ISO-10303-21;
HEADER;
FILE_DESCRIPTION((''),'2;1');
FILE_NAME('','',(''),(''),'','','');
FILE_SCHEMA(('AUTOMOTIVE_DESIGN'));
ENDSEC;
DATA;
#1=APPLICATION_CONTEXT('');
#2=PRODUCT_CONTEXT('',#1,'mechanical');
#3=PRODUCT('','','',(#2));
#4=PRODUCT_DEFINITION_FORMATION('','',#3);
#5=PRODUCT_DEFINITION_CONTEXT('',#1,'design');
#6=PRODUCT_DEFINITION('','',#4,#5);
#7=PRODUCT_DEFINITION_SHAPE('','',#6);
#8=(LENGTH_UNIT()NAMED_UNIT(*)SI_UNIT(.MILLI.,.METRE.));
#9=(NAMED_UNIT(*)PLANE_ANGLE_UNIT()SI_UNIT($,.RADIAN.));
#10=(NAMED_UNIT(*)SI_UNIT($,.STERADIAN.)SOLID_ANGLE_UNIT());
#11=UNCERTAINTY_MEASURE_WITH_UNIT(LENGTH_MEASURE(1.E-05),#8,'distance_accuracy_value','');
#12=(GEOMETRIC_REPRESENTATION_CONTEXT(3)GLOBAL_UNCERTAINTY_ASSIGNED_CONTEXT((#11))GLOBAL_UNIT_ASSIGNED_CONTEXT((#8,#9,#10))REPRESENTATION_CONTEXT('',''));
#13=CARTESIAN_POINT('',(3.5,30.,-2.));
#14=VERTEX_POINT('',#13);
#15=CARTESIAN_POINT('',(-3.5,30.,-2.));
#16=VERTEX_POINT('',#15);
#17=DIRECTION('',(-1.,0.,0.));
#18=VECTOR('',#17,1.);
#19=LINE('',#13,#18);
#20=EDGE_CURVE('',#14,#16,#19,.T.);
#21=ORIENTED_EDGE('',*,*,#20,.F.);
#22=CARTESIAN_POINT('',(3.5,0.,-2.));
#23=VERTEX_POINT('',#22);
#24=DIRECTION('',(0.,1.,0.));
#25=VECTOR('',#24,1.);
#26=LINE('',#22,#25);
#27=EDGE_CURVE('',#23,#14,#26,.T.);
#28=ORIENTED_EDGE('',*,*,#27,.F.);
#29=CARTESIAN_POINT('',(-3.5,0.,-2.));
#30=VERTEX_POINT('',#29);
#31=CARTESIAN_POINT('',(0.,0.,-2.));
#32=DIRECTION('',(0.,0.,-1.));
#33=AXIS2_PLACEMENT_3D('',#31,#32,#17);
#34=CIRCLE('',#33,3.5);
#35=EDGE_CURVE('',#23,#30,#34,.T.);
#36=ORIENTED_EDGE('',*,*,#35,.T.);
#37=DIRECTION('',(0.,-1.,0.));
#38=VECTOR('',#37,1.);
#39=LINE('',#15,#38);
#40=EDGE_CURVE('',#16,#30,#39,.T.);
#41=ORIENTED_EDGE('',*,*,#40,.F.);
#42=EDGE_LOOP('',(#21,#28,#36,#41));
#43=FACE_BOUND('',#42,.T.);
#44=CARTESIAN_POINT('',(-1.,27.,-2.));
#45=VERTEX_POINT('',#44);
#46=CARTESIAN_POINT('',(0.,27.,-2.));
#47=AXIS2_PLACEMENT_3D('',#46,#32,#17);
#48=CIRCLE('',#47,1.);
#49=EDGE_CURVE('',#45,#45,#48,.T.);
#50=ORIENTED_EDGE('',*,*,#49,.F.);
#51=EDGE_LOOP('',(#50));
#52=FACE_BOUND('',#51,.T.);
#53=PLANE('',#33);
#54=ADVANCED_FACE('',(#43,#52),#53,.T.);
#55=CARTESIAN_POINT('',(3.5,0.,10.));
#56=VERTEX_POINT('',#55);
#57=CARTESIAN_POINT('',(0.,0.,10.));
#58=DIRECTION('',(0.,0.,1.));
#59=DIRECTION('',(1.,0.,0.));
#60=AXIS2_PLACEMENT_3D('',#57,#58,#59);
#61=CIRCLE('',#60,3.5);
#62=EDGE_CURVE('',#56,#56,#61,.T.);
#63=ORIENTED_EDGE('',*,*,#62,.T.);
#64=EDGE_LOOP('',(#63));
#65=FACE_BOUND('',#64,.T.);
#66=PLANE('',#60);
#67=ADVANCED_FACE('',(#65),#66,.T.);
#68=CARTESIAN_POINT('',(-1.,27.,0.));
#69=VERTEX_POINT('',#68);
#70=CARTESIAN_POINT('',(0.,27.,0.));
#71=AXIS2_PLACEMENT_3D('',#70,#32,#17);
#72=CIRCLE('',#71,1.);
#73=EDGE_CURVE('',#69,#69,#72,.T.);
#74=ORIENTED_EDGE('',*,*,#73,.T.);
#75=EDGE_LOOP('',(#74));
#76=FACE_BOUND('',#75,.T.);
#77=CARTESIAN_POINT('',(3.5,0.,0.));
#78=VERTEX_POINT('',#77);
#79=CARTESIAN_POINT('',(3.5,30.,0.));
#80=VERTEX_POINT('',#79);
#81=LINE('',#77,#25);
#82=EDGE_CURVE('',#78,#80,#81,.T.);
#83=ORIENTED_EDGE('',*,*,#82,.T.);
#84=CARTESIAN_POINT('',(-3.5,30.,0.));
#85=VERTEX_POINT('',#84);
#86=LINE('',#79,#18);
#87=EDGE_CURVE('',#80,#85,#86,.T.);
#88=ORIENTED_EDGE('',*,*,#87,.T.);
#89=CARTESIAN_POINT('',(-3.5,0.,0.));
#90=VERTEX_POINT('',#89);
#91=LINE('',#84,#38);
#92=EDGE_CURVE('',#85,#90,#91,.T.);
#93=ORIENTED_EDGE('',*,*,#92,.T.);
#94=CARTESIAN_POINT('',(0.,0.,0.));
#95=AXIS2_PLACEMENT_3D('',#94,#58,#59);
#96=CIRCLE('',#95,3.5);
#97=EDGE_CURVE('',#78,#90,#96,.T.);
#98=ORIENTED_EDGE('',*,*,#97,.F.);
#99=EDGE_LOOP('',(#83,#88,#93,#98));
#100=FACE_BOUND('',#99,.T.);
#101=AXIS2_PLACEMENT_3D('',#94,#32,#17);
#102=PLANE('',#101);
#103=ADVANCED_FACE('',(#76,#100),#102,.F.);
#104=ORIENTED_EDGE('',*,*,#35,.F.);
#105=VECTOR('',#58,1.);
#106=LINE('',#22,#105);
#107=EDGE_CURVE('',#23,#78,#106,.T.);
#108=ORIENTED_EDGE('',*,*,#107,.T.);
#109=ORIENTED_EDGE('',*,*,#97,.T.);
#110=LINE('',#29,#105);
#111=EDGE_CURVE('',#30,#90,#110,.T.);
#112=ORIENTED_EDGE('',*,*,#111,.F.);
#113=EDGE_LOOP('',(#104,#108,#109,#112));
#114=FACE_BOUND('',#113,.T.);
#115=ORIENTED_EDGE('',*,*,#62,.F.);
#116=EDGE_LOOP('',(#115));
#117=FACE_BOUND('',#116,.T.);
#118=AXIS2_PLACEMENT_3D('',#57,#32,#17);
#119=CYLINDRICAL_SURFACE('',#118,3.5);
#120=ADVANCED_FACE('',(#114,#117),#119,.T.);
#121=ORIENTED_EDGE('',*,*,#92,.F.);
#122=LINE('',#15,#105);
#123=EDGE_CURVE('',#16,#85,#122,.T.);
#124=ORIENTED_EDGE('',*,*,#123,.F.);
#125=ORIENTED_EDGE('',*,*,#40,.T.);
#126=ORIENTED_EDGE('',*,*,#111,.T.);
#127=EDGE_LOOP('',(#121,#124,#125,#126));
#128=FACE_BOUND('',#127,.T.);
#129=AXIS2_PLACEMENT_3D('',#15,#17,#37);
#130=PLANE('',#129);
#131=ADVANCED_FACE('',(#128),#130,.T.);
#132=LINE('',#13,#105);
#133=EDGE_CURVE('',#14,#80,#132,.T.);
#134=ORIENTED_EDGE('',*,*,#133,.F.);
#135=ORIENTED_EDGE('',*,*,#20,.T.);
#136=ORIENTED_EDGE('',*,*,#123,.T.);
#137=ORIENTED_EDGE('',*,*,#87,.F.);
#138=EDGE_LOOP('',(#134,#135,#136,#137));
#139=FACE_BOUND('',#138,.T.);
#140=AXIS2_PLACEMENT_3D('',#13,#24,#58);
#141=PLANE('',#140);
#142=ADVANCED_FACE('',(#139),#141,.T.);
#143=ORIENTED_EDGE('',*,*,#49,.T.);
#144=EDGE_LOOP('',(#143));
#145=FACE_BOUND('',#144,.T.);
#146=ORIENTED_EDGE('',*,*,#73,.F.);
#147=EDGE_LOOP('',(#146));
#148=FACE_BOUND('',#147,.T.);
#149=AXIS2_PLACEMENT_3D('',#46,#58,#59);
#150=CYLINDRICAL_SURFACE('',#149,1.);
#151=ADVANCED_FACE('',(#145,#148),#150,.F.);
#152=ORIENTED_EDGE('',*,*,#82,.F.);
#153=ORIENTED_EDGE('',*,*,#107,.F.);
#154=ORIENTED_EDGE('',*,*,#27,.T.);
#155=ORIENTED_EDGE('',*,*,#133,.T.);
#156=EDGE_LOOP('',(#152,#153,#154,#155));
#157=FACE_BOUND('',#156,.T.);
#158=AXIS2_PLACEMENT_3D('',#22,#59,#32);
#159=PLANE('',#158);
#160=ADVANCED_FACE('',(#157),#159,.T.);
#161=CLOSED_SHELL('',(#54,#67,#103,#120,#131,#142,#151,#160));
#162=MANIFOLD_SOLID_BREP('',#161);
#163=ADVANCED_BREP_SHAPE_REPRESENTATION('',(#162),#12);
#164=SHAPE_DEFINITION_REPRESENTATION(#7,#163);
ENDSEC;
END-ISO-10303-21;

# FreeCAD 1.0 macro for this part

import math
import FreeCAD as App
import Part
import Sketcher

doc = App.newDocument("Part")
body = doc.addObject("PartDesign::Body", "Body")

# Sketch on XY plane
sketch1 = body.newObject("Sketcher::SketchObject", "Sketch")
sketch1.AttachmentSupport = (doc.getObject("XY_Plane"), [""])
sketch1.MapMode = "FlatFace"
sketch1.addGeometry(Part.Circle(App.Vector(0, 0, 0), App.Vector(0, 0, 1), 3.5), False)
sketch1.addConstraint([
    Sketcher.Constraint("Coincident", 0, 3, -1, 1),
    Sketcher.Constraint("Diameter", 0, 7.0),
])
pad1 = body.newObject("PartDesign::Pad", "Pad")
pad1.Profile = sketch1
pad1.Length = 10

# Sketch on XY plane
sketch2 = body.newObject("Sketcher::SketchObject", "Sketch001")
sketch2.AttachmentSupport = (doc.getObject("XY_Plane"), [""])
sketch2.MapMode = "FlatFace"
sketch2.AttachmentOffset = App.Placement(App.Vector(0, 0, -2), App.Rotation())
sketch2.addGeometry([
    Part.LineSegment(App.Vector(3.5, 30, 0), App.Vector(3.5, 0, 0)),  # 0
    Part.ArcOfCircle(Part.Circle(App.Vector(0, 0, 0), App.Vector(0, 0, 1), 3.5), math.radians(180), math.radians(360)),  # 1
    Part.LineSegment(App.Vector(-3.5, 0, 0), App.Vector(-3.5, 30, 0)),  # 2
    Part.LineSegment(App.Vector(-3.5, 30, 0), App.Vector(3.5, 30, 0)),  # 3
    Part.Circle(App.Vector(0, 27, 0), App.Vector(0, 0, 1), 1),  # 4
], False)
sketch2.addConstraint([
    Sketcher.Constraint("Tangent", 0, 2, 1, 2),
    Sketcher.Constraint("Tangent", 1, 1, 2, 1),
    Sketcher.Constraint("Coincident", 2, 2, 3, 1),
    Sketcher.Constraint("Coincident", 3, 2, 0, 1),
    Sketcher.Constraint("Vertical", 0),
    Sketcher.Constraint("Vertical", 2),
    Sketcher.Constraint("Horizontal", 3),
    Sketcher.Constraint("Coincident", 1, 3, -1, 1),
    Sketcher.Constraint("PointOnObject", 4, 3, -2),
    Sketcher.Constraint("Diameter", 4, 2.0),
    Sketcher.Constraint("Radius", 1, 3.5),
    Sketcher.Constraint("DistanceY", 0, 2, 0, 1, 30.0),
    Sketcher.Constraint("DistanceY", -1, 1, 4, 3, 27.0),
])
pad2 = body.newObject("PartDesign::Pad", "Pad001")
pad2.Profile = sketch2
pad2.Length = 2

doc.recompute()
